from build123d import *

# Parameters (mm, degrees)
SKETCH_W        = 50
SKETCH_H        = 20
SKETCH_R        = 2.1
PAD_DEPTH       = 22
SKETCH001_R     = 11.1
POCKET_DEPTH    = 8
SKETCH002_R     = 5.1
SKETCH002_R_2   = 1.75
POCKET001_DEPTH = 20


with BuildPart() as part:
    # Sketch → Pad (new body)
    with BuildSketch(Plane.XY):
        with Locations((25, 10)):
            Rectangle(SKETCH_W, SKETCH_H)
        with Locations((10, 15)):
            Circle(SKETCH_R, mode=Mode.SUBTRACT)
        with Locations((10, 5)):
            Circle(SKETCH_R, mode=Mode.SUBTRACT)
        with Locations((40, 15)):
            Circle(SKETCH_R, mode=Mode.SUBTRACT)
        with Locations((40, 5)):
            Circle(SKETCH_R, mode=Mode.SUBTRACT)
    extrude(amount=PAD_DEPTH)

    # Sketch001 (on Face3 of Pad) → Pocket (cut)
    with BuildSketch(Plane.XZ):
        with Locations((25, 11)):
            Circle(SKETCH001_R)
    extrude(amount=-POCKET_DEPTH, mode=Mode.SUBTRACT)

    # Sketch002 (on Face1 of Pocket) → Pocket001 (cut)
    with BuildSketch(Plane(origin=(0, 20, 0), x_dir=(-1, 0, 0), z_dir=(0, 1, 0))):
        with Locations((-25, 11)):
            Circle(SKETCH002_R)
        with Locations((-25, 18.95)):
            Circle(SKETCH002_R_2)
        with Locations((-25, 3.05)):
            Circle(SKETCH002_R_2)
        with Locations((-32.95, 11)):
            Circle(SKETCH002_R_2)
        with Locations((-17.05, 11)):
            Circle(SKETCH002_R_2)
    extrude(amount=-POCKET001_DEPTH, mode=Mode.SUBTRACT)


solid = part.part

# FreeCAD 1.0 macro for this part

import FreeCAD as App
import Part
import Sketcher
Q = App.Units.Quantity


def add_polygon(sketch, points):
    """Adds a closed chain of lines whose ends are joined by coincident constraints."""
    first, n = sketch.GeometryCount, len(points)
    for a, b in zip(points, points[1:] + points[:1]):
        sketch.addGeometry(Part.LineSegment(App.Vector(*a, 0), App.Vector(*b, 0)), False)
    for i in range(n):
        sketch.addConstraint(Sketcher.Constraint("Coincident", first + i, 2, first + (i + 1) % n, 1))

doc = App.newDocument("Part")
params = doc.addObject("Spreadsheet::Sheet", "Params")
for row, (alias, value) in enumerate([
    ("sketch1_diameter", "4.2 mm"),
    ("sketch1_width", "50 mm"),
    ("sketch1_height", "20 mm"),
    ("pad1_length", "22 mm"),
    ("sketch2_diameter", "22.2 mm"),
    ("pocket1_length", "8 mm"),
    ("sketch3_diameter", "10.2 mm"),
    ("sketch3_diameter2", "3.5 mm"),
    ("pocket2_length", "20 mm"),
], start=1):
    params.set(f"A{row}", alias)
    params.set(f"B{row}", "=" + value)
    params.setAlias(f"B{row}", alias)

body = doc.addObject("PartDesign::Body", "Body")

sketch1 = doc.addObject("Sketcher::SketchObject", "Sketch")
body.addObject(sketch1)
sketch1.AttachmentSupport = (doc.XY_Plane, [""])
sketch1.MapMode = "FlatFace"
add_polygon(sketch1, [(0, 20), (0, 0), (50, 0), (50, 20)])
sketch1.addGeometry(Part.Circle(App.Vector(10, 5, 0), App.Vector(0, 0, 1), 2.1), False)
sketch1.addGeometry(Part.Circle(App.Vector(40, 5, 0), App.Vector(0, 0, 1), 2.1), False)
sketch1.addGeometry(Part.Circle(App.Vector(10, 15, 0), App.Vector(0, 0, 1), 2.1), False)
sketch1.addGeometry(Part.Circle(App.Vector(40, 15, 0), App.Vector(0, 0, 1), 2.1), False)
sketch1.addConstraint([
    Sketcher.Constraint("Vertical", 0),
    Sketcher.Constraint("Horizontal", 1),
    Sketcher.Constraint("Vertical", 2),
    Sketcher.Constraint("Horizontal", 3),
    Sketcher.Constraint("Coincident", 0, 2, -1, 1),
    Sketcher.Constraint("Equal", 4, 5),
    Sketcher.Constraint("Equal", 5, 6),
    Sketcher.Constraint("Equal", 6, 7),
    Sketcher.Constraint("Horizontal", 4, 3, 5, 3),
    Sketcher.Constraint("Horizontal", 6, 3, 7, 3),
    Sketcher.Constraint("Vertical", 4, 3, 6, 3),
    Sketcher.Constraint("Vertical", 5, 3, 7, 3),
    Sketcher.Constraint("Diameter", 4, Q("4.2 mm")),
    Sketcher.Constraint("DistanceX", 1, 1, 1, 2, Q("50 mm")),
    Sketcher.Constraint("DistanceY", 0, 2, 0, 1, Q("20 mm")),
    Sketcher.Constraint("DistanceX", -1, 1, 4, 3, Q("10 mm")),
    Sketcher.Constraint("DistanceY", -1, 1, 4, 3, Q("5 mm")),
    Sketcher.Constraint("DistanceX", -1, 1, 5, 3, Q("40 mm")),
    Sketcher.Constraint("DistanceY", -1, 1, 6, 3, Q("15 mm")),
])
sketch1.setExpression("Constraints[16]", "Params.sketch1_diameter")
sketch1.setExpression("Constraints[17]", "Params.sketch1_width")
sketch1.setExpression("Constraints[18]", "Params.sketch1_height")
pad1 = doc.addObject("PartDesign::Pad", "Pad")
body.addObject(pad1)
pad1.Profile = sketch1
pad1.setExpression("Length", "Params.pad1_length")

sketch2 = doc.addObject("Sketcher::SketchObject", "Sketch001")
body.addObject(sketch2)
sketch2.AttachmentSupport = (doc.XZ_Plane, [""])
sketch2.MapMode = "FlatFace"
sketch2.addGeometry(Part.Circle(App.Vector(25, 11, 0), App.Vector(0, 0, 1), 11), False)
sketch2.addConstraint([
    Sketcher.Constraint("Diameter", 0, Q("22.2 mm")),
    Sketcher.Constraint("DistanceX", -1, 1, 0, 3, Q("25 mm")),
    Sketcher.Constraint("DistanceY", -1, 1, 0, 3, Q("11 mm")),
])
sketch2.setExpression("Constraints[0]", "Params.sketch2_diameter")
pocket1 = doc.addObject("PartDesign::Pocket", "Pocket")
body.addObject(pocket1)
pocket1.Profile = sketch2
pocket1.setExpression("Length", "Params.pocket1_length")

sketch3 = doc.addObject("Sketcher::SketchObject", "Sketch002")
body.addObject(sketch3)
sketch3.AttachmentSupport = (doc.XZ_Plane, [""])
sketch3.MapMode = "FlatFace"
sketch3.AttachmentOffset = App.Placement(App.Vector(0, 0, -20), App.Rotation())
sketch3.addGeometry([
    Part.Circle(App.Vector(25, 11, 0), App.Vector(0, 0, 1), 5.1),
    Part.Circle(App.Vector(25, 18.9, 0), App.Vector(0, 0, 1), 1.8),
    Part.Circle(App.Vector(25, 3, 0), App.Vector(0, 0, 1), 1.8),
    Part.Circle(App.Vector(33, 11, 0), App.Vector(0, 0, 1), 1.8),
    Part.Circle(App.Vector(17.1, 11, 0), App.Vector(0, 0, 1), 1.8),
], False)
sketch3.addConstraint([
    Sketcher.Constraint("Equal", 1, 2),
    Sketcher.Constraint("Equal", 2, 3),
    Sketcher.Constraint("Equal", 3, 4),
    Sketcher.Constraint("Horizontal", 0, 3, 3, 3),
    Sketcher.Constraint("Horizontal", 3, 3, 4, 3),
    Sketcher.Constraint("Vertical", 0, 3, 1, 3),
    Sketcher.Constraint("Vertical", 1, 3, 2, 3),
    Sketcher.Constraint("Diameter", 0, Q("10.2 mm")),
    Sketcher.Constraint("Diameter", 1, Q("3.5 mm")),
    Sketcher.Constraint("DistanceX", -1, 1, 0, 3, Q("25 mm")),
    Sketcher.Constraint("DistanceY", -1, 1, 0, 3, Q("11 mm")),
    Sketcher.Constraint("DistanceY", 2, 3, 1, 3, Q("15.9 mm")),
    Sketcher.Constraint("DistanceX", 4, 3, 3, 3, Q("15.9 mm")),
    Sketcher.Constraint("DistanceY", -1, 1, 1, 3, Q("18.95 mm")),
    Sketcher.Constraint("DistanceX", -1, 1, 3, 3, Q("32.95 mm")),
])
sketch3.setExpression("Constraints[7]", "Params.sketch3_diameter")
sketch3.setExpression("Constraints[8]", "Params.sketch3_diameter2")
pocket2 = doc.addObject("PartDesign::Pocket", "Pocket001")
body.addObject(pocket2)
pocket2.Profile = sketch3
pocket2.setExpression("Length", "Params.pocket2_length")
pocket2.Reversed = True

doc.recompute()
